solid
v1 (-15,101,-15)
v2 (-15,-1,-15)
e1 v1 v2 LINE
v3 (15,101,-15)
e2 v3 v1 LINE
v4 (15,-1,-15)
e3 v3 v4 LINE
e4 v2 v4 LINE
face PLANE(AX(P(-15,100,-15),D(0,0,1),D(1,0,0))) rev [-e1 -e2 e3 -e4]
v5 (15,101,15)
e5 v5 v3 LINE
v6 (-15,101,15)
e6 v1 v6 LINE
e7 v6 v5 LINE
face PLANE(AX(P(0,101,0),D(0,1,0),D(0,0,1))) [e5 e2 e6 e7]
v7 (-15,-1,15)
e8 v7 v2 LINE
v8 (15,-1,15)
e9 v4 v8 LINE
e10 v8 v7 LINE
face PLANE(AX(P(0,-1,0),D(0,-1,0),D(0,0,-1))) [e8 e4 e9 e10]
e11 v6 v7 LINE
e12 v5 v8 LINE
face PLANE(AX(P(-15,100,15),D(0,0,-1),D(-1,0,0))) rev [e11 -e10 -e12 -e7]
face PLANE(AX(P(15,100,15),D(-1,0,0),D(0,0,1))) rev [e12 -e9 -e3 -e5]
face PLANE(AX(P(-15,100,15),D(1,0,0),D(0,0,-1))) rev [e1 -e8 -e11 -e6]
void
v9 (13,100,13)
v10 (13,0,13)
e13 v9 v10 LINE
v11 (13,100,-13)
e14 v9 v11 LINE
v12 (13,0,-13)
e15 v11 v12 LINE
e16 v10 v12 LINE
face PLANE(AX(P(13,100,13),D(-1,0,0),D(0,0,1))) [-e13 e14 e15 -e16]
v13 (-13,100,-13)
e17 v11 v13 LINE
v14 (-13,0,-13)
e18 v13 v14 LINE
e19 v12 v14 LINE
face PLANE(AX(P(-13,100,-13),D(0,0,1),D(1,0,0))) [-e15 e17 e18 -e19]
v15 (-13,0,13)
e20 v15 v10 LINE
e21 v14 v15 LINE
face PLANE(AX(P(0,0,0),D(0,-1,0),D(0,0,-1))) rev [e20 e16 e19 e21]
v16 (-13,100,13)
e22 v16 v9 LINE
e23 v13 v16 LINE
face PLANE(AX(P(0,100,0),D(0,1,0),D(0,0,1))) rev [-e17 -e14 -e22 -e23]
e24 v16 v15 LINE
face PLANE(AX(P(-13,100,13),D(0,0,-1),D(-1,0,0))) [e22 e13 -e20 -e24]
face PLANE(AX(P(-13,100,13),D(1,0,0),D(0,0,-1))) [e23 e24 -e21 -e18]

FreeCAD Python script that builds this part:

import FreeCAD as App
import Part
import Sketcher


def add_polygon(sketch, points):
    """Adds a closed chain of lines whose ends are joined by coincident constraints."""
    first, n = sketch.GeometryCount, len(points)
    for a, b in zip(points, points[1:] + points[:1]):
        sketch.addGeometry(Part.LineSegment(App.Vector(*a, 0), App.Vector(*b, 0)), False)
    for i in range(n):
        sketch.addConstraint(Sketcher.Constraint("Coincident", first + i, 2, first + (i + 1) % n, 1))

doc = App.newDocument("Part")
params = doc.addObject("Spreadsheet::Sheet", "Params")
for row, (alias, value) in enumerate([
    ("sketch1_width", "30 mm"),
    ("sketch1_width2", "26 mm"),
    ("pad1_length", "100 mm"),
    ("sketch2_width", "30 mm"),
    ("pad2_length", "1 mm"),
    ("sketch3_width", "30 mm"),
    ("pad3_length", "1 mm"),
], start=1):
    params.set(f"A{row}", alias)
    params.set(f"B{row}", "=" + value)
    params.setAlias(f"B{row}", alias)

body = doc.addObject("PartDesign::Body", "Body")

sketch1 = body.newObject("Sketcher::SketchObject", "Sketch")
sketch1.AttachmentSupport = (doc.getObject("XZ_Plane"), [""])
sketch1.MapMode = "FlatFace"
add_polygon(sketch1, [(-15, -15), (-15, 15), (15, 15), (15, -15)])
add_polygon(sketch1, [(13, 13), (-13, 13), (-13, -13), (13, -13)])
sketch1.addConstraint([
    Sketcher.Constraint("Vertical", 0),
    Sketcher.Constraint("Horizontal", 1),
    Sketcher.Constraint("Vertical", 2),
    Sketcher.Constraint("Horizontal", 3),
    Sketcher.Constraint("Horizontal", 4),
    Sketcher.Constraint("Vertical", 5),
    Sketcher.Constraint("Horizontal", 6),
    Sketcher.Constraint("Vertical", 7),
    Sketcher.Constraint("Symmetric", 0, 2, 2, 2, -1, 1),
    Sketcher.Constraint("Symmetric", 4, 2, 6, 2, -1, 1),
    Sketcher.Constraint("Equal", 3, 0),
    Sketcher.Constraint("Equal", 6, 5),
    Sketcher.Constraint("DistanceX", 1, 1, 1, 2, 30.0),
    Sketcher.Constraint("DistanceX", 4, 2, 4, 1, 26.0),
])
sketch1.setExpression("Constraints[20]", "Params.sketch1_width")
sketch1.setExpression("Constraints[21]", "Params.sketch1_width2")
pad1 = body.newObject("PartDesign::Pad", "Pad")
pad1.Profile = sketch1
pad1.setExpression("Length", "Params.pad1_length")
pad1.Reversed = True

sketch2 = body.newObject("Sketcher::SketchObject", "Sketch001")
sketch2.AttachmentSupport = (doc.getObject("XZ_Plane"), [""])
sketch2.MapMode = "FlatFace"
sketch2.AttachmentOffset = App.Placement(App.Vector(0, 0, -100), App.Rotation())
add_polygon(sketch2, [(-15, -15), (-15, 15), (15, 15), (15, -15)])
sketch2.addConstraint([
    Sketcher.Constraint("Vertical", 0),
    Sketcher.Constraint("Horizontal", 1),
    Sketcher.Constraint("Vertical", 2),
    Sketcher.Constraint("Horizontal", 3),
    Sketcher.Constraint("Symmetric", 0, 2, 2, 2, -1, 1),
    Sketcher.Constraint("Equal", 3, 0),
    Sketcher.Constraint("DistanceX", 1, 1, 1, 2, 30.0),
])
sketch2.setExpression("Constraints[10]", "Params.sketch2_width")
pad2 = body.newObject("PartDesign::Pad", "Pad001")
pad2.Profile = sketch2
pad2.setExpression("Length", "Params.pad2_length")
pad2.Reversed = True

sketch3 = body.newObject("Sketcher::SketchObject", "Sketch002")
sketch3.AttachmentSupport = (doc.getObject("XZ_Plane"), [""])
sketch3.MapMode = "FlatFace"
add_polygon(sketch3, [(-15, 15), (-15, -15), (15, -15), (15, 15)])
sketch3.addConstraint([
    Sketcher.Constraint("Vertical", 0),
    Sketcher.Constraint("Horizontal", 1),
    Sketcher.Constraint("Vertical", 2),
    Sketcher.Constraint("Horizontal", 3),
    Sketcher.Constraint("Symmetric", 0, 2, 2, 2, -1, 1),
    Sketcher.Constraint("Equal", 3, 0),
    Sketcher.Constraint("DistanceX", 1, 1, 1, 2, 30.0),
])
sketch3.setExpression("Constraints[10]", "Params.sketch3_width")
pad3 = body.newObject("PartDesign::Pad", "Pad002")
pad3.Profile = sketch3
pad3.setExpression("Length", "Params.pad3_length")

doc.recompute()
